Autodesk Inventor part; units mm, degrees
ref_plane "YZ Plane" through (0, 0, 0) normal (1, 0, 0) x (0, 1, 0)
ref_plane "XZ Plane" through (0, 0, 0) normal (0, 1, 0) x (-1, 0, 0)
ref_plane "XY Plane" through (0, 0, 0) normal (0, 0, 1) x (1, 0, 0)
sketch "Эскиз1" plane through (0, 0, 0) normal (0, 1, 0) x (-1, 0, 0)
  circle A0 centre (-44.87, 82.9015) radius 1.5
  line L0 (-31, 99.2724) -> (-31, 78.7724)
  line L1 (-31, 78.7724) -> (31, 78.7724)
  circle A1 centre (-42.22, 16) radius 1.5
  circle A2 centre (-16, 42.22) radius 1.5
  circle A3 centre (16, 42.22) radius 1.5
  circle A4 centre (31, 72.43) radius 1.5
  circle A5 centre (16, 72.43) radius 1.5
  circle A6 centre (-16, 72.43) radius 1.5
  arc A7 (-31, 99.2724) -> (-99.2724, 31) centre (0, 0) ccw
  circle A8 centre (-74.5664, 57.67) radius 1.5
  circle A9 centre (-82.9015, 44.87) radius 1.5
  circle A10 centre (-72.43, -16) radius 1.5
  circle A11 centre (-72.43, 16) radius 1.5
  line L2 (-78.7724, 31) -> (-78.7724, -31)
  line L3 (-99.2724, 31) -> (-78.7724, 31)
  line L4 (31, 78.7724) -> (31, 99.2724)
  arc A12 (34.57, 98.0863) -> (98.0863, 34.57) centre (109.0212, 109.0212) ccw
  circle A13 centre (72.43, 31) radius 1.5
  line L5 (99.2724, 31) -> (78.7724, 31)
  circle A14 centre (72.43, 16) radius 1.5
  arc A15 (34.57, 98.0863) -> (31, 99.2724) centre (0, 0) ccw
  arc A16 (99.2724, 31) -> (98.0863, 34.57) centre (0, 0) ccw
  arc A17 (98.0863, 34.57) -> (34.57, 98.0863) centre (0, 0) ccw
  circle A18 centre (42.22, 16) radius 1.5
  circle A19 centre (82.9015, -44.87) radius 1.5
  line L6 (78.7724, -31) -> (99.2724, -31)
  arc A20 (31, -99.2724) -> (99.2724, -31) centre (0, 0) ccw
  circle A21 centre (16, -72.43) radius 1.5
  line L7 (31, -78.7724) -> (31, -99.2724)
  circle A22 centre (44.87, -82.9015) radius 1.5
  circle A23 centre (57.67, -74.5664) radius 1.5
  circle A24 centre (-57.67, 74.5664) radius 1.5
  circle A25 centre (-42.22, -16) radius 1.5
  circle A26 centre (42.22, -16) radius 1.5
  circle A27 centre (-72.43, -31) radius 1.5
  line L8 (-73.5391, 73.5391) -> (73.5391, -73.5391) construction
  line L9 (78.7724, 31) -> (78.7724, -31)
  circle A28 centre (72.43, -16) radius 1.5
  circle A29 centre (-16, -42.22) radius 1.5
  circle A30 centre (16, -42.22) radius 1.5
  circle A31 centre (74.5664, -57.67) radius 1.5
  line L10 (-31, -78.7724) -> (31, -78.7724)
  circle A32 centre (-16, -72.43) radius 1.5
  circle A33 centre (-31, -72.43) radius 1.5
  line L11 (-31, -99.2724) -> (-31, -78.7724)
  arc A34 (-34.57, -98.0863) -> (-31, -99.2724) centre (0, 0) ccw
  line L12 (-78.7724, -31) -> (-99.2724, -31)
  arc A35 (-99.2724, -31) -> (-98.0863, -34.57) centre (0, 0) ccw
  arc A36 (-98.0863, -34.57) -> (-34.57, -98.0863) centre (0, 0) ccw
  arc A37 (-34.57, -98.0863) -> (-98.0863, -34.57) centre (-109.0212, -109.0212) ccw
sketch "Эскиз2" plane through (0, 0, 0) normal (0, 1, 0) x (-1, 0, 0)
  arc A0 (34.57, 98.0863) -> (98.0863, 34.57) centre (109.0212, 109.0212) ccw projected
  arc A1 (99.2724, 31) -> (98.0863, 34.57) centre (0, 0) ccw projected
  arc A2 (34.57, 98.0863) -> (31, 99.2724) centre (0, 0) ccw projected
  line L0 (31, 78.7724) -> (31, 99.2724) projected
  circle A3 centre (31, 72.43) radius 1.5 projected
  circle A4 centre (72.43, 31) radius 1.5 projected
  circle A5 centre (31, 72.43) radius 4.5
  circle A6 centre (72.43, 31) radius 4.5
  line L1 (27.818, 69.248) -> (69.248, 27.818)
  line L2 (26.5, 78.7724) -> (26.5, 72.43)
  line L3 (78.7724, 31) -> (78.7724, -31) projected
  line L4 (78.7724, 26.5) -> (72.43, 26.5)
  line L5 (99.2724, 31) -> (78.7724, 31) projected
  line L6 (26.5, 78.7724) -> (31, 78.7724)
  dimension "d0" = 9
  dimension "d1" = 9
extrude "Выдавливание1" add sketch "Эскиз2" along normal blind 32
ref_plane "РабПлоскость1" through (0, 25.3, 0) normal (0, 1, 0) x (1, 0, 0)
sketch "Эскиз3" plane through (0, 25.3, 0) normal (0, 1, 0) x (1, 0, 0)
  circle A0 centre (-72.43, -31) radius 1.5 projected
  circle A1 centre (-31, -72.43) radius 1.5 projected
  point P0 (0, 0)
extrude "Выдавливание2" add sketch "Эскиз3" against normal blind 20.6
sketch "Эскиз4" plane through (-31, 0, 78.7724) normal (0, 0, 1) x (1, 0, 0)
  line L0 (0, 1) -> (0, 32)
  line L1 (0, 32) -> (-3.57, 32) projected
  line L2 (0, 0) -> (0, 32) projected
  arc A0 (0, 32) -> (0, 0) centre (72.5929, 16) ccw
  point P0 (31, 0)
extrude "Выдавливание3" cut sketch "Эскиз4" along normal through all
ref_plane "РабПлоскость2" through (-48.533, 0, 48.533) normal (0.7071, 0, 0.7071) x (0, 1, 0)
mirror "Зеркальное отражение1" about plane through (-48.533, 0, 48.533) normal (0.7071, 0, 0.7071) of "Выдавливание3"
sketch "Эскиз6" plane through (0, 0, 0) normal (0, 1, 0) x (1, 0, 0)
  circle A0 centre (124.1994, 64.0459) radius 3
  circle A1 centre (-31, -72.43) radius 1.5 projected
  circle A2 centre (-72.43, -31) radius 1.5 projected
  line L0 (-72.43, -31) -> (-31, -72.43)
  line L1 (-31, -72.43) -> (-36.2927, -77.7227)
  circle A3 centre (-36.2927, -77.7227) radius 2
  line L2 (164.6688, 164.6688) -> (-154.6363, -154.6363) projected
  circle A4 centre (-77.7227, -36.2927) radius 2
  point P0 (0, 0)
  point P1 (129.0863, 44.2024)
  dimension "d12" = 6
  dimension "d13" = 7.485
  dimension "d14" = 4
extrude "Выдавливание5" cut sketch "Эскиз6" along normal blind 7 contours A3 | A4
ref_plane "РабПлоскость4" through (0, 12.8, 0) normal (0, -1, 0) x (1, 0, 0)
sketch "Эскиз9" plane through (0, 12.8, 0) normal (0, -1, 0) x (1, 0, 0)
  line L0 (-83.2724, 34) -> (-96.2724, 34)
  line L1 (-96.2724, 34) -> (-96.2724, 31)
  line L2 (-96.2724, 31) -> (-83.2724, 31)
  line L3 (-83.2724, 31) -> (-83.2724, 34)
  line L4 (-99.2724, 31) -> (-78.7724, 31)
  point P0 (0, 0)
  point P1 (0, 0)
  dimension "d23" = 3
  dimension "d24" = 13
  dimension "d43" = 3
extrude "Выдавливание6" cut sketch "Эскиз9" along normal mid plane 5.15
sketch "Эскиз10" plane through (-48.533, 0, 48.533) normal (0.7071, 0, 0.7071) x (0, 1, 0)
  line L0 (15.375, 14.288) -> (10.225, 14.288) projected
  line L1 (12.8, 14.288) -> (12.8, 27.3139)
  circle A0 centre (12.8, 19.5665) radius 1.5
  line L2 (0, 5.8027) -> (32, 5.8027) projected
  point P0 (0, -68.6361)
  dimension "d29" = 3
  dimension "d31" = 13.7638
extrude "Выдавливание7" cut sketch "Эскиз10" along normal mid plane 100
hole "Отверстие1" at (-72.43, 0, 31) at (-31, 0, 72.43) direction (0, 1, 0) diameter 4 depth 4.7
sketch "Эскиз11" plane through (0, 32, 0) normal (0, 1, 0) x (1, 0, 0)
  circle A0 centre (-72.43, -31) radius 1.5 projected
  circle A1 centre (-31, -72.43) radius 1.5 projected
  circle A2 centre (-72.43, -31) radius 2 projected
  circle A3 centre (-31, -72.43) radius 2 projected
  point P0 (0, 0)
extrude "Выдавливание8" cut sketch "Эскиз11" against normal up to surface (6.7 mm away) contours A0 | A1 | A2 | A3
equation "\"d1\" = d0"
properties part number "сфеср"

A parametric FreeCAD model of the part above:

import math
import FreeCAD as App
import Part
import Sketcher
Q = App.Units.Quantity

doc = App.newDocument("Part")
body = doc.addObject("PartDesign::Body", "Body")

sketch1 = body.newObject("Sketcher::SketchObject", "Sketch")
sketch1.AttachmentSupport = (doc.getObject("XZ_Plane"), [""])
sketch1.MapMode = "FlatFace"
sketch1.addGeometry([
    Part.ArcOfCircle(Part.Circle(App.Vector(-109, 109, 0), App.Vector(0, 0, 1), 75.2), math.radians(-82), math.radians(-8)),
    Part.ArcOfCircle(Part.Circle(App.Vector(0, 0, 0), App.Vector(0, 0, 1), 104), math.radians(107.34), math.radians(109.41)),
    Part.LineSegment(App.Vector(-31, 99.3, 0), App.Vector(-31, 78.8, 0)),
    Part.LineSegment(App.Vector(-31, 78.8, 0), App.Vector(-26.5, 78.8, 0)),
    Part.LineSegment(App.Vector(-26.5, 78.8, 0), App.Vector(-26.5, 72.4, 0)),
    Part.ArcOfCircle(Part.Circle(App.Vector(-31, 72.4, 0), App.Vector(0, 0, 1), 4.5), math.radians(-45), math.radians(0)),
    Part.LineSegment(App.Vector(-27.8, 69.2, 0), App.Vector(-69.2, 27.8, 0)),
    Part.ArcOfCircle(Part.Circle(App.Vector(-72.4, 31, 0), App.Vector(0, 0, 1), 4.5), math.radians(-90), math.radians(-45)),
    Part.LineSegment(App.Vector(-72.4, 26.5, 0), App.Vector(-78.8, 26.5, 0)),
    Part.LineSegment(App.Vector(-78.8, 26.5, 0), App.Vector(-78.8, 31, 0)),
    Part.LineSegment(App.Vector(-78.8, 31, 0), App.Vector(-99.3, 31, 0)),
    Part.ArcOfCircle(Part.Circle(App.Vector(0, 0, 0), App.Vector(0, 0, 1), 104), math.radians(160.58), math.radians(162.66)),
    Part.Circle(App.Vector(-72.4, 31, 0), App.Vector(0, 0, 1), 1.5),
    Part.Circle(App.Vector(-31, 72.4, 0), App.Vector(0, 0, 1), 1.5),
], False)
sketch1.addConstraint([
    Sketcher.Constraint("Coincident", 0, 2, 1, 2),
    Sketcher.Constraint("Coincident", 1, 1, 2, 1),
    Sketcher.Constraint("Coincident", 2, 2, 3, 1),
    Sketcher.Constraint("Coincident", 3, 2, 4, 1),
    Sketcher.Constraint("Tangent", 4, 2, 5, 2),
    Sketcher.Constraint("Tangent", 5, 1, 6, 1),
    Sketcher.Constraint("Tangent", 6, 2, 7, 2),
    Sketcher.Constraint("Tangent", 7, 1, 8, 1),
    Sketcher.Constraint("Coincident", 8, 2, 9, 1),
    Sketcher.Constraint("Coincident", 9, 2, 10, 1),
    Sketcher.Constraint("Coincident", 10, 2, 11, 2),
    Sketcher.Constraint("Coincident", 11, 1, 0, 1),
    Sketcher.Constraint("Vertical", 2),
    Sketcher.Constraint("Horizontal", 3),
    Sketcher.Constraint("Vertical", 4),
    Sketcher.Constraint("Horizontal", 8),
    Sketcher.Constraint("Vertical", 9),
    Sketcher.Constraint("Horizontal", 10),
    Sketcher.Constraint("Coincident", 12, 3, 7, 3),
    Sketcher.Constraint("Coincident", 13, 3, 5, 3),
    Sketcher.Constraint("Equal", 5, 7),
    Sketcher.Constraint("Equal", 12, 13),
    Sketcher.Constraint("Horizontal", 12, 3, 9, 2),
    Sketcher.Constraint("Vertical", 13, 3, 1, 1),
    Sketcher.Constraint("Equal", 10, 2),
    Sketcher.Constraint("Equal", 8, 4),
    Sketcher.Constraint("Radius", 5, Q("4.5 mm")),
    Sketcher.Constraint("Diameter", 12, Q("3 mm")),
    Sketcher.Constraint("Angle", 6, Q("-135 deg")),
    Sketcher.Constraint("Radius", 0, Q("75.25 mm")),
    Sketcher.Constraint("DistanceX", 10, 2, 10, 1, Q("20.5 mm")),
    Sketcher.Constraint("DistanceX", 5, 3, -1, 1, Q("31 mm")),
    Sketcher.Constraint("DistanceY", -1, 1, 7, 3, Q("31 mm")),
    Sketcher.Constraint("Radius", 11, Q("103.967 mm")),
    Sketcher.Constraint("Radius", 1, Q("104.0332 mm")),
    Sketcher.Constraint("DistanceY", -1, 1, 5, 3, Q("72.43 mm")),
    Sketcher.Constraint("DistanceX", 0, 2, -1, 1, Q("34.57 mm")),
    Sketcher.Constraint("DistanceY", -1, 1, 11, 1, Q("34.57 mm")),
    Sketcher.Constraint("DistanceX", 8, 2, 8, 1, Q("6.3424 mm")),
    Sketcher.Constraint("DistanceX", 0, 3, 1, 3, Q("109.032 mm")),
    Sketcher.Constraint("DistanceY", 11, 3, 0, 3, Q("109.011 mm")),
])
pad1 = body.newObject("PartDesign::Pad", "Pad")
pad1.Profile = sketch1
pad1.Length = 32
pad1.Reversed = True

sketch2 = body.newObject("Sketcher::SketchObject", "Sketch001")
sketch2.AttachmentSupport = (doc.getObject("XZ_Plane"), [""])
sketch2.MapMode = "FlatFace"
sketch2.AttachmentOffset = App.Placement(App.Vector(0, 0, -25.3), App.Rotation())
sketch2.addGeometry([
    Part.Circle(App.Vector(-72.4, 31, 0), App.Vector(0, 0, 1), 1.5),
    Part.Circle(App.Vector(-31, 72.4, 0), App.Vector(0, 0, 1), 1.5),
], False)
sketch2.addConstraint([
    Sketcher.Constraint("Equal", 0, 1),
    Sketcher.Constraint("Diameter", 0, Q("3 mm")),
    Sketcher.Constraint("DistanceY", -1, 1, 0, 3, Q("31 mm")),
    Sketcher.Constraint("DistanceX", 1, 3, -1, 1, Q("31 mm")),
    Sketcher.Constraint("DistanceX", 0, 3, -1, 1, Q("72.43 mm")),
    Sketcher.Constraint("DistanceY", -1, 1, 1, 3, Q("72.43 mm")),
])
pad2 = body.newObject("PartDesign::Pad", "Pad001")
pad2.Profile = sketch2
pad2.Length = 20.6

sketch3 = body.newObject("Sketcher::SketchObject", "Sketch002")
sketch3.AttachmentSupport = (doc.getObject("XY_Plane"), [""])
sketch3.MapMode = "FlatFace"
sketch3.AttachmentOffset = App.Placement(App.Vector(0, 0, 78.7724), App.Rotation())
sketch3.addGeometry([
    Part.LineSegment(App.Vector(-31, 0, 0), App.Vector(-31, 32, 0)),
    Part.ArcOfCircle(Part.Circle(App.Vector(42, 16, 0), App.Vector(0, 0, 1), 74), math.radians(168), math.radians(192)),
], False)
sketch3.addConstraint([
    Sketcher.Constraint("Coincident", 0, 1, 1, 2),
    Sketcher.Constraint("Coincident", 1, 1, 0, 2),
    Sketcher.Constraint("Vertical", 0),
    Sketcher.Constraint("PointOnObject", 0, 1, -1),
    Sketcher.Constraint("DistanceY", 0, 1, 0, 2, Q("32 mm")),
    Sketcher.Constraint("DistanceX", 0, 1, -1, 1, Q("31 mm")),
    Sketcher.Constraint("Radius", 1, Q("74.3352 mm")),
])
pocket1 = body.newObject("PartDesign::Pocket", "Pocket")
pocket1.Profile = sketch3
pocket1.Type = "ThroughAll"
pocket1.Reversed = True
doc.recompute()

datumplane = body.newObject("PartDesign::Plane", "DatumPlane")
datumplane.Placement = App.Placement(App.Vector(0, 0, 0), App.Rotation(App.Vector(0.707106781, 0, -0.707106781), App.Vector(0, -1, 0), App.Vector(-0.707106781, 0, -0.707106781), "ZXY"))
mirrored = body.newObject("PartDesign::Mirrored", "Mirrored")
mirrored.Originals = [pocket1]
mirrored.MirrorPlane = (datumplane, [""])
body.Tip = mirrored

sketch4 = body.newObject("Sketcher::SketchObject", "Sketch003")
sketch4.AttachmentSupport = (doc.getObject("XZ_Plane"), [""])
sketch4.MapMode = "FlatFace"
sketch4.addGeometry([
    Part.Circle(App.Vector(-36.3, 77.7, 0), App.Vector(0, 0, 1), 2),
    Part.Circle(App.Vector(-77.7, 36.3, 0), App.Vector(0, 0, 1), 2),
], False)
sketch4.addConstraint([
    Sketcher.Constraint("Equal", 0, 1),
    Sketcher.Constraint("Diameter", 0, Q("4 mm")),
    Sketcher.Constraint("DistanceX", 1, 3, 0, 3, Q("41.43 mm")),
    Sketcher.Constraint("DistanceY", 1, 3, 0, 3, Q("41.43 mm")),
    Sketcher.Constraint("DistanceX", 0, 3, -1, 1, Q("36.2927 mm")),
    Sketcher.Constraint("DistanceY", -1, 1, 0, 3, Q("77.7227 mm")),
])
pocket2 = body.newObject("PartDesign::Pocket", "Pocket001")
pocket2.Profile = sketch4
pocket2.Length = 7

sketch5 = body.newObject("Sketcher::SketchObject", "Sketch004")
sketch5.AttachmentSupport = (doc.getObject("XZ_Plane"), [""])
sketch5.MapMode = "FlatFace"
sketch5.AttachmentOffset = App.Placement(App.Vector(0, 0, -12.8), App.Rotation())
sketch5.addGeometry([
    Part.LineSegment(App.Vector(-83.3, 31, 0), App.Vector(-83.3, 34, 0)),
    Part.LineSegment(App.Vector(-83.3, 34, 0), App.Vector(-96.3, 34, 0)),
    Part.LineSegment(App.Vector(-96.3, 34, 0), App.Vector(-96.3, 31, 0)),
    Part.LineSegment(App.Vector(-96.3, 31, 0), App.Vector(-83.3, 31, 0)),
], False)
sketch5.addConstraint([
    Sketcher.Constraint("Coincident", 0, 2, 1, 1),
    Sketcher.Constraint("Coincident", 1, 2, 2, 1),
    Sketcher.Constraint("Coincident", 2, 2, 3, 1),
    Sketcher.Constraint("Coincident", 3, 2, 0, 1),
    Sketcher.Constraint("Vertical", 0),
    Sketcher.Constraint("Horizontal", 1),
    Sketcher.Constraint("Vertical", 2),
    Sketcher.Constraint("Horizontal", 3),
    Sketcher.Constraint("DistanceX", 1, 2, 1, 1, Q("13 mm")),
    Sketcher.Constraint("DistanceY", 0, 1, 0, 2, Q("3 mm")),
    Sketcher.Constraint("DistanceY", -1, 1, 0, 2, Q("34 mm")),
    Sketcher.Constraint("DistanceX", 0, 2, -1, 1, Q("83.2724 mm")),
])
pocket3 = body.newObject("PartDesign::Pocket", "Pocket002")
pocket3.Profile = sketch5
pocket3.Length = 5.15
pocket3.Midplane = True

sketch6 = body.newObject("Sketcher::SketchObject", "Sketch005")
sketch6.Placement = App.Placement(App.Vector(-48.533, 0, 48.533), App.Rotation(App.Vector(0, 1, 0), App.Vector(-0.707106781, 0, 0.707106781), App.Vector(0.707106781, 0, 0.707106781), "ZXY"))
sketch6.addGeometry(Part.Circle(App.Vector(12.8, 19.6, 0), App.Vector(0, 0, 1), 1.5), False)
sketch6.addConstraint([
    Sketcher.Constraint("Diameter", 0, Q("3 mm")),
    Sketcher.Constraint("DistanceX", -1, 1, 0, 3, Q("12.8 mm")),
    Sketcher.Constraint("DistanceY", -1, 1, 0, 3, Q("19.5665 mm")),
])
pocket4 = body.newObject("PartDesign::Pocket", "Pocket003")
pocket4.Profile = sketch6
pocket4.Length = 100
pocket4.Midplane = True

sketch7 = body.newObject("Sketcher::SketchObject", "Sketch006")
sketch7.AttachmentSupport = (doc.getObject("XZ_Plane"), [""])
sketch7.MapMode = "FlatFace"
sketch7.addGeometry([
    Part.Circle(App.Vector(-72.4, 31, 0), App.Vector(0, 0, 1), 2),
    Part.Circle(App.Vector(-31, 72.4, 0), App.Vector(0, 0, 1), 2),
], False)
sketch7.addConstraint([
    Sketcher.Constraint("Equal", 0, 1),
    Sketcher.Constraint("Diameter", 0, Q("4 mm")),
    Sketcher.Constraint("DistanceY", -1, 1, 0, 3, Q("31 mm")),
    Sketcher.Constraint("DistanceX", 1, 3, -1, 1, Q("31 mm")),
    Sketcher.Constraint("DistanceX", 0, 3, -1, 1, Q("72.43 mm")),
    Sketcher.Constraint("DistanceY", -1, 1, 1, 3, Q("72.43 mm")),
])
doc.recompute()
hole = body.newObject("PartDesign::Hole", "Hole")
hole.Profile = sketch7
hole.ThreadType = "None"
hole.Diameter = 4
hole.DepthType = "Dimension"
hole.Depth = 4.7
hole.DrillPoint = "Flat"

sketch8 = body.newObject("Sketcher::SketchObject", "Sketch007")
sketch8.AttachmentSupport = (doc.getObject("XZ_Plane"), [""])
sketch8.MapMode = "FlatFace"
sketch8.AttachmentOffset = App.Placement(App.Vector(0, 0, -32), App.Rotation())
sketch8.addGeometry([
    Part.Circle(App.Vector(-72.4, 31, 0), App.Vector(0, 0, 1), 2),
    Part.Circle(App.Vector(-31, 72.4, 0), App.Vector(0, 0, 1), 2),
], False)
sketch8.addConstraint([
    Sketcher.Constraint("Equal", 0, 1),
    Sketcher.Constraint("Diameter", 0, Q("4 mm")),
    Sketcher.Constraint("DistanceY", -1, 1, 0, 3, Q("31 mm")),
    Sketcher.Constraint("DistanceX", 1, 3, -1, 1, Q("31 mm")),
    Sketcher.Constraint("DistanceX", 0, 3, -1, 1, Q("72.43 mm")),
    Sketcher.Constraint("DistanceY", -1, 1, 1, 3, Q("72.43 mm")),
])
pocket5 = body.newObject("PartDesign::Pocket", "Pocket004")
pocket5.Profile = sketch8
pocket5.Length = 6.7
pocket5.Reversed = True

doc.recompute()
